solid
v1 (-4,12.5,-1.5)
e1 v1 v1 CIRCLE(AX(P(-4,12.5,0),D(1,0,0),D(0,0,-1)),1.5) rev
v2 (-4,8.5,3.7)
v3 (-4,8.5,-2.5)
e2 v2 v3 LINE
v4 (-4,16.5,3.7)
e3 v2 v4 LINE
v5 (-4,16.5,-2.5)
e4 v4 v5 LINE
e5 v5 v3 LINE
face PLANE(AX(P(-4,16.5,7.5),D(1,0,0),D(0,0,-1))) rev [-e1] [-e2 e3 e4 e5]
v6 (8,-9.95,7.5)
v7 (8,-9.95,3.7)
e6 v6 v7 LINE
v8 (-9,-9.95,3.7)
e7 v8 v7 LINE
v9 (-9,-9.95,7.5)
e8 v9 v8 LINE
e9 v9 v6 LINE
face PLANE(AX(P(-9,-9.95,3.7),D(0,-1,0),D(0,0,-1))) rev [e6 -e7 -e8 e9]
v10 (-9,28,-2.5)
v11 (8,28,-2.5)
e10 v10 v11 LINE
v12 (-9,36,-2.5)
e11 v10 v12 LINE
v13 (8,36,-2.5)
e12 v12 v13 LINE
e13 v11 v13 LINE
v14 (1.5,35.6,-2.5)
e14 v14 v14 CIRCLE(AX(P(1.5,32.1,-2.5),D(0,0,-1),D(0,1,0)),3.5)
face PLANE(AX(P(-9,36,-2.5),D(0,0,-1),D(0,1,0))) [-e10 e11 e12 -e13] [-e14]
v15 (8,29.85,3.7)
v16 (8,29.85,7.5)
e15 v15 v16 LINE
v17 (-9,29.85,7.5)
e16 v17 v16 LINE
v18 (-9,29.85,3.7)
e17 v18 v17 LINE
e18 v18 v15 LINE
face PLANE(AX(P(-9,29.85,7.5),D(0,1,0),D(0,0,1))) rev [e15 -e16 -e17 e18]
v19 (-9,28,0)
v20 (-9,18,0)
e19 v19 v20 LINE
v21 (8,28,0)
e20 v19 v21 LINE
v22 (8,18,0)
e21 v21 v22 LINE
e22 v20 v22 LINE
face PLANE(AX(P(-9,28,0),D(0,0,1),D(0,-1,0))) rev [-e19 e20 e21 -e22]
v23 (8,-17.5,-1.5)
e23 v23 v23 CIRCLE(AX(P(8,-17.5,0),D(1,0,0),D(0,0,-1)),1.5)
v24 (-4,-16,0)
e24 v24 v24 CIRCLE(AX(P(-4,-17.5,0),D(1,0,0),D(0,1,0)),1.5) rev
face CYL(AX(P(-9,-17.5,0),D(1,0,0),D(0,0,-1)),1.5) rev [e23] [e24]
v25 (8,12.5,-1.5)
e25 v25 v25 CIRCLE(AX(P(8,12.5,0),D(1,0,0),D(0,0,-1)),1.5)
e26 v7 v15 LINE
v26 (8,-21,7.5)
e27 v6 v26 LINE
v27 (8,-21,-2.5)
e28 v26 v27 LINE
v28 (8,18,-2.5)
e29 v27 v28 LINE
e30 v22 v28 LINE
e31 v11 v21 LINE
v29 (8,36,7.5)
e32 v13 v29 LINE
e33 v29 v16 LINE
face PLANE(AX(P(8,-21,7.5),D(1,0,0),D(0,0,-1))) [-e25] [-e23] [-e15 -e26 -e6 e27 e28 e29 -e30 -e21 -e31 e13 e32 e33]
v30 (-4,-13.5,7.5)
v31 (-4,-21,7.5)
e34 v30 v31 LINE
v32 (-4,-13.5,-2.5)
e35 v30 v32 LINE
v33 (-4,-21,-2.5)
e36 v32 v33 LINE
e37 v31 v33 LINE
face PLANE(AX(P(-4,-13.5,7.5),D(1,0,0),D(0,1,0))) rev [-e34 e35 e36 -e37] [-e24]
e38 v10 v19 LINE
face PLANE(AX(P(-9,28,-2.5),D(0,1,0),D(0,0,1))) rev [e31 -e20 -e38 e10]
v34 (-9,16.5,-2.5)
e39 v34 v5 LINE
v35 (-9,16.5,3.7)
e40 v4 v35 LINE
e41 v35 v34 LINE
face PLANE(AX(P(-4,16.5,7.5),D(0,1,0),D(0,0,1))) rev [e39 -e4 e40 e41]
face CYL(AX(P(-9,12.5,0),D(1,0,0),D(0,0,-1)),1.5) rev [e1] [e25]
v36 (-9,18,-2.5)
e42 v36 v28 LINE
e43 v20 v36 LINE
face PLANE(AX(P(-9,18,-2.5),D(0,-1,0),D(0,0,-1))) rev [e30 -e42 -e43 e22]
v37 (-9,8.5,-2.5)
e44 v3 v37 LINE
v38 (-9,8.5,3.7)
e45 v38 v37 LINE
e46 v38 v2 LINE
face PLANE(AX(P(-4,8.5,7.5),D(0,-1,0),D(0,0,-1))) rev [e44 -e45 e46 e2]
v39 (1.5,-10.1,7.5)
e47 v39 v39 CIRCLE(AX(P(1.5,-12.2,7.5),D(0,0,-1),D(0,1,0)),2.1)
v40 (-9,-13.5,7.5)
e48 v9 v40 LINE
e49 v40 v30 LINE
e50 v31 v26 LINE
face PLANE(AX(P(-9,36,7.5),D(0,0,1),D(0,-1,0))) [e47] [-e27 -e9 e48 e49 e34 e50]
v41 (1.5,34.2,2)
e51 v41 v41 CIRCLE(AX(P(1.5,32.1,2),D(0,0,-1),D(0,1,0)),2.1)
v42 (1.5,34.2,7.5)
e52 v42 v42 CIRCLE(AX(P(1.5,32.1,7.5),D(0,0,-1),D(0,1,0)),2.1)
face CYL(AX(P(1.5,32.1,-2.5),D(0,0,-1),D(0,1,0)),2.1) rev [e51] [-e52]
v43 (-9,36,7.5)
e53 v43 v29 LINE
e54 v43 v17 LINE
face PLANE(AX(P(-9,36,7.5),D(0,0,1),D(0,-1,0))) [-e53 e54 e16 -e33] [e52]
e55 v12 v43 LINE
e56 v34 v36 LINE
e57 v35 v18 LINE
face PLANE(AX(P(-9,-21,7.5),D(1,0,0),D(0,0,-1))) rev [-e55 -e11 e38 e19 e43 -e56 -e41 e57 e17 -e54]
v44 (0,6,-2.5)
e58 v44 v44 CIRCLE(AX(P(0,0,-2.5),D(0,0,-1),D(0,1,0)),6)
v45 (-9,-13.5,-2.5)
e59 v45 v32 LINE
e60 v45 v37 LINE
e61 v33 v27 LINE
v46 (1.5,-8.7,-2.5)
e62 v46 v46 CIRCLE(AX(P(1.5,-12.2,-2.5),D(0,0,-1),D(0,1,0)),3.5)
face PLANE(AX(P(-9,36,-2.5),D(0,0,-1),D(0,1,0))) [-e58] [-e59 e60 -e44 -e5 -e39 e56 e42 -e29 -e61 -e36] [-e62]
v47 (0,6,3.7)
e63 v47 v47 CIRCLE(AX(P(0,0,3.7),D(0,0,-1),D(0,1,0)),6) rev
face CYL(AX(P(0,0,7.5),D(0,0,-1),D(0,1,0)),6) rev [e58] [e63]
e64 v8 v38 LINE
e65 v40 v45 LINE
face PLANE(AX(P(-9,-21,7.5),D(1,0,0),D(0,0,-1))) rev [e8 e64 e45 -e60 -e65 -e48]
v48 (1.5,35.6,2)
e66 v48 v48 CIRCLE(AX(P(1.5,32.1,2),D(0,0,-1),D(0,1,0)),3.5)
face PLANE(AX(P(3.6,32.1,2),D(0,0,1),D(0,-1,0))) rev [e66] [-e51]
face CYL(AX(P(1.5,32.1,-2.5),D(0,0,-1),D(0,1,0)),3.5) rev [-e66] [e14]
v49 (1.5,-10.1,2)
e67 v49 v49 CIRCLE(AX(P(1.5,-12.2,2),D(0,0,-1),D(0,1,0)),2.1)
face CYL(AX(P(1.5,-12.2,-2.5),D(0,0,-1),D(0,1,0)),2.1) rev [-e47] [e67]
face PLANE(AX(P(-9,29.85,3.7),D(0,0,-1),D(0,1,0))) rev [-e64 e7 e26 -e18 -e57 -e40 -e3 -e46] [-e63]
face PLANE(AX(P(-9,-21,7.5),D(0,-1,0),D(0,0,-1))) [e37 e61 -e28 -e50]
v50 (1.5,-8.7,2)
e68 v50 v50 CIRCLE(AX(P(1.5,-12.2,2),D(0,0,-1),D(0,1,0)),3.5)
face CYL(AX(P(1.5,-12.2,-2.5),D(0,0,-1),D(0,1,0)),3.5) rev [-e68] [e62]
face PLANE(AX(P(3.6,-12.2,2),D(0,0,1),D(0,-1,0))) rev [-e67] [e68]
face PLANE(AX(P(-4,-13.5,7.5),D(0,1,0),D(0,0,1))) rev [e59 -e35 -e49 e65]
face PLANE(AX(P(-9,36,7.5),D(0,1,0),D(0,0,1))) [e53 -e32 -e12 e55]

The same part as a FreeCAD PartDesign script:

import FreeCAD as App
import Part
import Sketcher

doc = App.newDocument("Part")
body = doc.addObject("PartDesign::Body", "Body")

# Sketch on YZ plane
sketch1 = body.newObject("Sketcher::SketchObject", "Sketch")
sketch1.AttachmentSupport = (doc.getObject("YZ_Plane"), [""])
sketch1.MapMode = "FlatFace"
sketch1.addGeometry([
    Part.LineSegment(App.Vector(36, 7.5, 0), App.Vector(-21, 7.5, 0)),  # 0
    Part.LineSegment(App.Vector(-21, 7.5, 0), App.Vector(-21, -2.5, 0)),  # 1
    Part.LineSegment(App.Vector(-21, -2.5, 0), App.Vector(36, -2.5, 0)),  # 2
    Part.LineSegment(App.Vector(36, -2.5, 0), App.Vector(36, 7.5, 0)),  # 3
    Part.Circle(App.Vector(-17.5, 0, 0), App.Vector(0, 0, 1), 1.5),  # 4
    Part.Circle(App.Vector(12.5, 0, 0), App.Vector(0, 0, 1), 1.5),  # 5
], False)
sketch1.addConstraint([
    Sketcher.Constraint("Coincident", 0, 2, 1, 1),
    Sketcher.Constraint("Coincident", 1, 2, 2, 1),
    Sketcher.Constraint("Coincident", 2, 2, 3, 1),
    Sketcher.Constraint("Coincident", 3, 2, 0, 1),
    Sketcher.Constraint("Horizontal", 0),
    Sketcher.Constraint("Vertical", 1),
    Sketcher.Constraint("Horizontal", 2),
    Sketcher.Constraint("Vertical", 3),
    Sketcher.Constraint("Equal", 4, 5),
    Sketcher.Constraint("PointOnObject", 4, 3, -1),
    Sketcher.Constraint("PointOnObject", 5, 3, -1),
    Sketcher.Constraint("Diameter", 4, 3.0),
    Sketcher.Constraint("DistanceX", 0, 2, 0, 1, 57.0),
    Sketcher.Constraint("DistanceY", 1, 2, 1, 1, 10.0),
    Sketcher.Constraint("DistanceX", 0, 2, -1, 1, 21.0),
    Sketcher.Constraint("DistanceX", 4, 3, 5, 3, 30.0),
    Sketcher.Constraint("DistanceX", 4, 3, -1, 1, 17.5),
    Sketcher.Constraint("DistanceY", -1, 1, 0, 2, 7.5),
])
pad1 = body.newObject("PartDesign::Pad", "Pad")
pad1.Profile = sketch1
pad1.Type = "TwoLengths"
pad1.Length = 8
pad1.Length2 = 9

# Sketch on XY plane
sketch2 = body.newObject("Sketcher::SketchObject", "Sketch001")
sketch2.AttachmentSupport = (doc.getObject("XY_Plane"), [""])
sketch2.MapMode = "FlatFace"
sketch2.AttachmentOffset = App.Placement(App.Vector(0, 0, -2.5), App.Rotation())
sketch2.addGeometry([
    Part.Circle(App.Vector(0, 0, 0), App.Vector(0, 0, 1), 6),  # 0
    Part.LineSegment(App.Vector(-4, 16.5, 0), App.Vector(-4, 8.5, 0)),  # 1
    Part.LineSegment(App.Vector(-4, 8.5, 0), App.Vector(-9, 8.5, 0)),  # 2
    Part.LineSegment(App.Vector(-9, 8.5, 0), App.Vector(-9, 16.5, 0)),  # 3
    Part.LineSegment(App.Vector(-9, 16.5, 0), App.Vector(-4, 16.5, 0)),  # 4
    Part.LineSegment(App.Vector(-4, -13.5, 0), App.Vector(-4, -21, 0)),  # 5
    Part.LineSegment(App.Vector(-4, -21, 0), App.Vector(-9, -21, 0)),  # 6
    Part.LineSegment(App.Vector(-9, -21, 0), App.Vector(-9, -13.5, 0)),  # 7
    Part.LineSegment(App.Vector(-9, -13.5, 0), App.Vector(-4, -13.5, 0)),  # 8
], False)
sketch2.addConstraint([
    Sketcher.Constraint("Coincident", 1, 2, 2, 1),
    Sketcher.Constraint("Coincident", 2, 2, 3, 1),
    Sketcher.Constraint("Coincident", 3, 2, 4, 1),
    Sketcher.Constraint("Coincident", 4, 2, 1, 1),
    Sketcher.Constraint("Coincident", 5, 2, 6, 1),
    Sketcher.Constraint("Coincident", 6, 2, 7, 1),
    Sketcher.Constraint("Coincident", 7, 2, 8, 1),
    Sketcher.Constraint("Coincident", 8, 2, 5, 1),
    Sketcher.Constraint("Vertical", 1),
    Sketcher.Constraint("Horizontal", 2),
    Sketcher.Constraint("Vertical", 3),
    Sketcher.Constraint("Horizontal", 4),
    Sketcher.Constraint("Vertical", 5),
    Sketcher.Constraint("Horizontal", 6),
    Sketcher.Constraint("Vertical", 7),
    Sketcher.Constraint("Horizontal", 8),
    Sketcher.Constraint("Coincident", 0, 3, -1, 1),
    Sketcher.Constraint("Vertical", 4, 2, 5, 2),
    Sketcher.Constraint("Vertical", 3, 2, 6, 2),
    Sketcher.Constraint("Diameter", 0, 12.0),
    Sketcher.Constraint("DistanceX", 2, 2, 2, 1, 5.0),
    Sketcher.Constraint("DistanceY", 1, 2, 1, 1, 8.0),
    Sketcher.Constraint("DistanceY", 5, 2, 5, 1, 7.5),
    Sketcher.Constraint("DistanceX", 1, 2, -1, 1, 4.0),
    Sketcher.Constraint("DistanceY", 5, 2, -1, 1, 21.0),
    Sketcher.Constraint("DistanceY", 7, 2, 2, 2, 22.0),
])
pocket1 = body.newObject("PartDesign::Pocket", "Pocket")
pocket1.Profile = sketch2
pocket1.Type = "ThroughAll"
pocket1.Reversed = True

# Sketch on YZ plane
sketch3 = body.newObject("Sketcher::SketchObject", "Sketch002")
sketch3.AttachmentSupport = (doc.getObject("YZ_Plane"), [""])
sketch3.MapMode = "FlatFace"
sketch3.AttachmentOffset = App.Placement(App.Vector(0, 0, 8), App.Rotation())
sketch3.addGeometry([
    Part.LineSegment(App.Vector(29.85, 7.5, 0), App.Vector(-9.95, 7.5, 0)),  # 0
    Part.LineSegment(App.Vector(-9.95, 7.5, 0), App.Vector(-9.95, 3.7, 0)),  # 1
    Part.LineSegment(App.Vector(-9.95, 3.7, 0), App.Vector(29.85, 3.7, 0)),  # 2
    Part.LineSegment(App.Vector(29.85, 3.7, 0), App.Vector(29.85, 7.5, 0)),  # 3
    Part.LineSegment(App.Vector(28, 0, 0), App.Vector(18, 0, 0)),  # 4
    Part.LineSegment(App.Vector(18, 0, 0), App.Vector(18, -2.5, 0)),  # 5
    Part.LineSegment(App.Vector(18, -2.5, 0), App.Vector(28, -2.5, 0)),  # 6
    Part.LineSegment(App.Vector(28, -2.5, 0), App.Vector(28, 0, 0)),  # 7
], False)
sketch3.addConstraint([
    Sketcher.Constraint("Coincident", 0, 2, 1, 1),
    Sketcher.Constraint("Coincident", 1, 2, 2, 1),
    Sketcher.Constraint("Coincident", 2, 2, 3, 1),
    Sketcher.Constraint("Coincident", 3, 2, 0, 1),
    Sketcher.Constraint("Coincident", 4, 2, 5, 1),
    Sketcher.Constraint("Coincident", 5, 2, 6, 1),
    Sketcher.Constraint("Coincident", 6, 2, 7, 1),
    Sketcher.Constraint("Coincident", 7, 2, 4, 1),
    Sketcher.Constraint("Horizontal", 0),
    Sketcher.Constraint("Vertical", 1),
    Sketcher.Constraint("Horizontal", 2),
    Sketcher.Constraint("Vertical", 3),
    Sketcher.Constraint("Horizontal", 4),
    Sketcher.Constraint("Vertical", 5),
    Sketcher.Constraint("Horizontal", 6),
    Sketcher.Constraint("Vertical", 7),
    Sketcher.Constraint("PointOnObject", 4, 2, -1),
    Sketcher.Constraint("DistanceX", 4, 2, 4, 1, 10.0),
    Sketcher.Constraint("DistanceX", 0, 2, 0, 1, 39.8),
    Sketcher.Constraint("DistanceY", 1, 2, 1, 1, 3.8),
    Sketcher.Constraint("DistanceY", 5, 2, 5, 1, 2.5),
    Sketcher.Constraint("DistanceX", -1, 1, 4, 2, 18.0),
    Sketcher.Constraint("DistanceY", 5, 2, 3, 2, 10.0),
    Sketcher.Constraint("DistanceX", 0, 2, -1, 1, 9.95),
])
pocket2 = body.newObject("PartDesign::Pocket", "Pocket001")
pocket2.Profile = sketch3
pocket2.Type = "ThroughAll"

# Sketch on XY plane
sketch4 = body.newObject("Sketcher::SketchObject", "Sketch003")
sketch4.AttachmentSupport = (doc.getObject("XY_Plane"), [""])
sketch4.MapMode = "FlatFace"
sketch4.AttachmentOffset = App.Placement(App.Vector(0, 0, -2.5), App.Rotation())
sketch4.addGeometry([
    Part.Circle(App.Vector(1.5, -12.2, 0), App.Vector(0, 0, 1), 2.1),
    Part.Circle(App.Vector(1.5, 32.1, 0), App.Vector(0, 0, 1), 2.1),
], False)
sketch4.addConstraint([
    Sketcher.Constraint("Equal", 0, 1),
    Sketcher.Constraint("Vertical", 0, 3, 1, 3),
    Sketcher.Constraint("Diameter", 0, 4.2),
    Sketcher.Constraint("DistanceX", -1, 1, 0, 3, 1.5),
    Sketcher.Constraint("DistanceY", 0, 3, -1, 1, 12.2),
    Sketcher.Constraint("DistanceY", -1, 1, 1, 3, 32.1),
])
doc.recompute()
hole = body.newObject("PartDesign::Hole", "Hole")
hole.Profile = sketch4
hole.ThreadType = "None"
hole.Diameter = 4.2
hole.DepthType = "ThroughAll"
hole.HoleCutType = "Counterbore"
hole.HoleCutDiameter = 7
hole.HoleCutDepth = 4.5
hole.Reversed = True

doc.recompute()
